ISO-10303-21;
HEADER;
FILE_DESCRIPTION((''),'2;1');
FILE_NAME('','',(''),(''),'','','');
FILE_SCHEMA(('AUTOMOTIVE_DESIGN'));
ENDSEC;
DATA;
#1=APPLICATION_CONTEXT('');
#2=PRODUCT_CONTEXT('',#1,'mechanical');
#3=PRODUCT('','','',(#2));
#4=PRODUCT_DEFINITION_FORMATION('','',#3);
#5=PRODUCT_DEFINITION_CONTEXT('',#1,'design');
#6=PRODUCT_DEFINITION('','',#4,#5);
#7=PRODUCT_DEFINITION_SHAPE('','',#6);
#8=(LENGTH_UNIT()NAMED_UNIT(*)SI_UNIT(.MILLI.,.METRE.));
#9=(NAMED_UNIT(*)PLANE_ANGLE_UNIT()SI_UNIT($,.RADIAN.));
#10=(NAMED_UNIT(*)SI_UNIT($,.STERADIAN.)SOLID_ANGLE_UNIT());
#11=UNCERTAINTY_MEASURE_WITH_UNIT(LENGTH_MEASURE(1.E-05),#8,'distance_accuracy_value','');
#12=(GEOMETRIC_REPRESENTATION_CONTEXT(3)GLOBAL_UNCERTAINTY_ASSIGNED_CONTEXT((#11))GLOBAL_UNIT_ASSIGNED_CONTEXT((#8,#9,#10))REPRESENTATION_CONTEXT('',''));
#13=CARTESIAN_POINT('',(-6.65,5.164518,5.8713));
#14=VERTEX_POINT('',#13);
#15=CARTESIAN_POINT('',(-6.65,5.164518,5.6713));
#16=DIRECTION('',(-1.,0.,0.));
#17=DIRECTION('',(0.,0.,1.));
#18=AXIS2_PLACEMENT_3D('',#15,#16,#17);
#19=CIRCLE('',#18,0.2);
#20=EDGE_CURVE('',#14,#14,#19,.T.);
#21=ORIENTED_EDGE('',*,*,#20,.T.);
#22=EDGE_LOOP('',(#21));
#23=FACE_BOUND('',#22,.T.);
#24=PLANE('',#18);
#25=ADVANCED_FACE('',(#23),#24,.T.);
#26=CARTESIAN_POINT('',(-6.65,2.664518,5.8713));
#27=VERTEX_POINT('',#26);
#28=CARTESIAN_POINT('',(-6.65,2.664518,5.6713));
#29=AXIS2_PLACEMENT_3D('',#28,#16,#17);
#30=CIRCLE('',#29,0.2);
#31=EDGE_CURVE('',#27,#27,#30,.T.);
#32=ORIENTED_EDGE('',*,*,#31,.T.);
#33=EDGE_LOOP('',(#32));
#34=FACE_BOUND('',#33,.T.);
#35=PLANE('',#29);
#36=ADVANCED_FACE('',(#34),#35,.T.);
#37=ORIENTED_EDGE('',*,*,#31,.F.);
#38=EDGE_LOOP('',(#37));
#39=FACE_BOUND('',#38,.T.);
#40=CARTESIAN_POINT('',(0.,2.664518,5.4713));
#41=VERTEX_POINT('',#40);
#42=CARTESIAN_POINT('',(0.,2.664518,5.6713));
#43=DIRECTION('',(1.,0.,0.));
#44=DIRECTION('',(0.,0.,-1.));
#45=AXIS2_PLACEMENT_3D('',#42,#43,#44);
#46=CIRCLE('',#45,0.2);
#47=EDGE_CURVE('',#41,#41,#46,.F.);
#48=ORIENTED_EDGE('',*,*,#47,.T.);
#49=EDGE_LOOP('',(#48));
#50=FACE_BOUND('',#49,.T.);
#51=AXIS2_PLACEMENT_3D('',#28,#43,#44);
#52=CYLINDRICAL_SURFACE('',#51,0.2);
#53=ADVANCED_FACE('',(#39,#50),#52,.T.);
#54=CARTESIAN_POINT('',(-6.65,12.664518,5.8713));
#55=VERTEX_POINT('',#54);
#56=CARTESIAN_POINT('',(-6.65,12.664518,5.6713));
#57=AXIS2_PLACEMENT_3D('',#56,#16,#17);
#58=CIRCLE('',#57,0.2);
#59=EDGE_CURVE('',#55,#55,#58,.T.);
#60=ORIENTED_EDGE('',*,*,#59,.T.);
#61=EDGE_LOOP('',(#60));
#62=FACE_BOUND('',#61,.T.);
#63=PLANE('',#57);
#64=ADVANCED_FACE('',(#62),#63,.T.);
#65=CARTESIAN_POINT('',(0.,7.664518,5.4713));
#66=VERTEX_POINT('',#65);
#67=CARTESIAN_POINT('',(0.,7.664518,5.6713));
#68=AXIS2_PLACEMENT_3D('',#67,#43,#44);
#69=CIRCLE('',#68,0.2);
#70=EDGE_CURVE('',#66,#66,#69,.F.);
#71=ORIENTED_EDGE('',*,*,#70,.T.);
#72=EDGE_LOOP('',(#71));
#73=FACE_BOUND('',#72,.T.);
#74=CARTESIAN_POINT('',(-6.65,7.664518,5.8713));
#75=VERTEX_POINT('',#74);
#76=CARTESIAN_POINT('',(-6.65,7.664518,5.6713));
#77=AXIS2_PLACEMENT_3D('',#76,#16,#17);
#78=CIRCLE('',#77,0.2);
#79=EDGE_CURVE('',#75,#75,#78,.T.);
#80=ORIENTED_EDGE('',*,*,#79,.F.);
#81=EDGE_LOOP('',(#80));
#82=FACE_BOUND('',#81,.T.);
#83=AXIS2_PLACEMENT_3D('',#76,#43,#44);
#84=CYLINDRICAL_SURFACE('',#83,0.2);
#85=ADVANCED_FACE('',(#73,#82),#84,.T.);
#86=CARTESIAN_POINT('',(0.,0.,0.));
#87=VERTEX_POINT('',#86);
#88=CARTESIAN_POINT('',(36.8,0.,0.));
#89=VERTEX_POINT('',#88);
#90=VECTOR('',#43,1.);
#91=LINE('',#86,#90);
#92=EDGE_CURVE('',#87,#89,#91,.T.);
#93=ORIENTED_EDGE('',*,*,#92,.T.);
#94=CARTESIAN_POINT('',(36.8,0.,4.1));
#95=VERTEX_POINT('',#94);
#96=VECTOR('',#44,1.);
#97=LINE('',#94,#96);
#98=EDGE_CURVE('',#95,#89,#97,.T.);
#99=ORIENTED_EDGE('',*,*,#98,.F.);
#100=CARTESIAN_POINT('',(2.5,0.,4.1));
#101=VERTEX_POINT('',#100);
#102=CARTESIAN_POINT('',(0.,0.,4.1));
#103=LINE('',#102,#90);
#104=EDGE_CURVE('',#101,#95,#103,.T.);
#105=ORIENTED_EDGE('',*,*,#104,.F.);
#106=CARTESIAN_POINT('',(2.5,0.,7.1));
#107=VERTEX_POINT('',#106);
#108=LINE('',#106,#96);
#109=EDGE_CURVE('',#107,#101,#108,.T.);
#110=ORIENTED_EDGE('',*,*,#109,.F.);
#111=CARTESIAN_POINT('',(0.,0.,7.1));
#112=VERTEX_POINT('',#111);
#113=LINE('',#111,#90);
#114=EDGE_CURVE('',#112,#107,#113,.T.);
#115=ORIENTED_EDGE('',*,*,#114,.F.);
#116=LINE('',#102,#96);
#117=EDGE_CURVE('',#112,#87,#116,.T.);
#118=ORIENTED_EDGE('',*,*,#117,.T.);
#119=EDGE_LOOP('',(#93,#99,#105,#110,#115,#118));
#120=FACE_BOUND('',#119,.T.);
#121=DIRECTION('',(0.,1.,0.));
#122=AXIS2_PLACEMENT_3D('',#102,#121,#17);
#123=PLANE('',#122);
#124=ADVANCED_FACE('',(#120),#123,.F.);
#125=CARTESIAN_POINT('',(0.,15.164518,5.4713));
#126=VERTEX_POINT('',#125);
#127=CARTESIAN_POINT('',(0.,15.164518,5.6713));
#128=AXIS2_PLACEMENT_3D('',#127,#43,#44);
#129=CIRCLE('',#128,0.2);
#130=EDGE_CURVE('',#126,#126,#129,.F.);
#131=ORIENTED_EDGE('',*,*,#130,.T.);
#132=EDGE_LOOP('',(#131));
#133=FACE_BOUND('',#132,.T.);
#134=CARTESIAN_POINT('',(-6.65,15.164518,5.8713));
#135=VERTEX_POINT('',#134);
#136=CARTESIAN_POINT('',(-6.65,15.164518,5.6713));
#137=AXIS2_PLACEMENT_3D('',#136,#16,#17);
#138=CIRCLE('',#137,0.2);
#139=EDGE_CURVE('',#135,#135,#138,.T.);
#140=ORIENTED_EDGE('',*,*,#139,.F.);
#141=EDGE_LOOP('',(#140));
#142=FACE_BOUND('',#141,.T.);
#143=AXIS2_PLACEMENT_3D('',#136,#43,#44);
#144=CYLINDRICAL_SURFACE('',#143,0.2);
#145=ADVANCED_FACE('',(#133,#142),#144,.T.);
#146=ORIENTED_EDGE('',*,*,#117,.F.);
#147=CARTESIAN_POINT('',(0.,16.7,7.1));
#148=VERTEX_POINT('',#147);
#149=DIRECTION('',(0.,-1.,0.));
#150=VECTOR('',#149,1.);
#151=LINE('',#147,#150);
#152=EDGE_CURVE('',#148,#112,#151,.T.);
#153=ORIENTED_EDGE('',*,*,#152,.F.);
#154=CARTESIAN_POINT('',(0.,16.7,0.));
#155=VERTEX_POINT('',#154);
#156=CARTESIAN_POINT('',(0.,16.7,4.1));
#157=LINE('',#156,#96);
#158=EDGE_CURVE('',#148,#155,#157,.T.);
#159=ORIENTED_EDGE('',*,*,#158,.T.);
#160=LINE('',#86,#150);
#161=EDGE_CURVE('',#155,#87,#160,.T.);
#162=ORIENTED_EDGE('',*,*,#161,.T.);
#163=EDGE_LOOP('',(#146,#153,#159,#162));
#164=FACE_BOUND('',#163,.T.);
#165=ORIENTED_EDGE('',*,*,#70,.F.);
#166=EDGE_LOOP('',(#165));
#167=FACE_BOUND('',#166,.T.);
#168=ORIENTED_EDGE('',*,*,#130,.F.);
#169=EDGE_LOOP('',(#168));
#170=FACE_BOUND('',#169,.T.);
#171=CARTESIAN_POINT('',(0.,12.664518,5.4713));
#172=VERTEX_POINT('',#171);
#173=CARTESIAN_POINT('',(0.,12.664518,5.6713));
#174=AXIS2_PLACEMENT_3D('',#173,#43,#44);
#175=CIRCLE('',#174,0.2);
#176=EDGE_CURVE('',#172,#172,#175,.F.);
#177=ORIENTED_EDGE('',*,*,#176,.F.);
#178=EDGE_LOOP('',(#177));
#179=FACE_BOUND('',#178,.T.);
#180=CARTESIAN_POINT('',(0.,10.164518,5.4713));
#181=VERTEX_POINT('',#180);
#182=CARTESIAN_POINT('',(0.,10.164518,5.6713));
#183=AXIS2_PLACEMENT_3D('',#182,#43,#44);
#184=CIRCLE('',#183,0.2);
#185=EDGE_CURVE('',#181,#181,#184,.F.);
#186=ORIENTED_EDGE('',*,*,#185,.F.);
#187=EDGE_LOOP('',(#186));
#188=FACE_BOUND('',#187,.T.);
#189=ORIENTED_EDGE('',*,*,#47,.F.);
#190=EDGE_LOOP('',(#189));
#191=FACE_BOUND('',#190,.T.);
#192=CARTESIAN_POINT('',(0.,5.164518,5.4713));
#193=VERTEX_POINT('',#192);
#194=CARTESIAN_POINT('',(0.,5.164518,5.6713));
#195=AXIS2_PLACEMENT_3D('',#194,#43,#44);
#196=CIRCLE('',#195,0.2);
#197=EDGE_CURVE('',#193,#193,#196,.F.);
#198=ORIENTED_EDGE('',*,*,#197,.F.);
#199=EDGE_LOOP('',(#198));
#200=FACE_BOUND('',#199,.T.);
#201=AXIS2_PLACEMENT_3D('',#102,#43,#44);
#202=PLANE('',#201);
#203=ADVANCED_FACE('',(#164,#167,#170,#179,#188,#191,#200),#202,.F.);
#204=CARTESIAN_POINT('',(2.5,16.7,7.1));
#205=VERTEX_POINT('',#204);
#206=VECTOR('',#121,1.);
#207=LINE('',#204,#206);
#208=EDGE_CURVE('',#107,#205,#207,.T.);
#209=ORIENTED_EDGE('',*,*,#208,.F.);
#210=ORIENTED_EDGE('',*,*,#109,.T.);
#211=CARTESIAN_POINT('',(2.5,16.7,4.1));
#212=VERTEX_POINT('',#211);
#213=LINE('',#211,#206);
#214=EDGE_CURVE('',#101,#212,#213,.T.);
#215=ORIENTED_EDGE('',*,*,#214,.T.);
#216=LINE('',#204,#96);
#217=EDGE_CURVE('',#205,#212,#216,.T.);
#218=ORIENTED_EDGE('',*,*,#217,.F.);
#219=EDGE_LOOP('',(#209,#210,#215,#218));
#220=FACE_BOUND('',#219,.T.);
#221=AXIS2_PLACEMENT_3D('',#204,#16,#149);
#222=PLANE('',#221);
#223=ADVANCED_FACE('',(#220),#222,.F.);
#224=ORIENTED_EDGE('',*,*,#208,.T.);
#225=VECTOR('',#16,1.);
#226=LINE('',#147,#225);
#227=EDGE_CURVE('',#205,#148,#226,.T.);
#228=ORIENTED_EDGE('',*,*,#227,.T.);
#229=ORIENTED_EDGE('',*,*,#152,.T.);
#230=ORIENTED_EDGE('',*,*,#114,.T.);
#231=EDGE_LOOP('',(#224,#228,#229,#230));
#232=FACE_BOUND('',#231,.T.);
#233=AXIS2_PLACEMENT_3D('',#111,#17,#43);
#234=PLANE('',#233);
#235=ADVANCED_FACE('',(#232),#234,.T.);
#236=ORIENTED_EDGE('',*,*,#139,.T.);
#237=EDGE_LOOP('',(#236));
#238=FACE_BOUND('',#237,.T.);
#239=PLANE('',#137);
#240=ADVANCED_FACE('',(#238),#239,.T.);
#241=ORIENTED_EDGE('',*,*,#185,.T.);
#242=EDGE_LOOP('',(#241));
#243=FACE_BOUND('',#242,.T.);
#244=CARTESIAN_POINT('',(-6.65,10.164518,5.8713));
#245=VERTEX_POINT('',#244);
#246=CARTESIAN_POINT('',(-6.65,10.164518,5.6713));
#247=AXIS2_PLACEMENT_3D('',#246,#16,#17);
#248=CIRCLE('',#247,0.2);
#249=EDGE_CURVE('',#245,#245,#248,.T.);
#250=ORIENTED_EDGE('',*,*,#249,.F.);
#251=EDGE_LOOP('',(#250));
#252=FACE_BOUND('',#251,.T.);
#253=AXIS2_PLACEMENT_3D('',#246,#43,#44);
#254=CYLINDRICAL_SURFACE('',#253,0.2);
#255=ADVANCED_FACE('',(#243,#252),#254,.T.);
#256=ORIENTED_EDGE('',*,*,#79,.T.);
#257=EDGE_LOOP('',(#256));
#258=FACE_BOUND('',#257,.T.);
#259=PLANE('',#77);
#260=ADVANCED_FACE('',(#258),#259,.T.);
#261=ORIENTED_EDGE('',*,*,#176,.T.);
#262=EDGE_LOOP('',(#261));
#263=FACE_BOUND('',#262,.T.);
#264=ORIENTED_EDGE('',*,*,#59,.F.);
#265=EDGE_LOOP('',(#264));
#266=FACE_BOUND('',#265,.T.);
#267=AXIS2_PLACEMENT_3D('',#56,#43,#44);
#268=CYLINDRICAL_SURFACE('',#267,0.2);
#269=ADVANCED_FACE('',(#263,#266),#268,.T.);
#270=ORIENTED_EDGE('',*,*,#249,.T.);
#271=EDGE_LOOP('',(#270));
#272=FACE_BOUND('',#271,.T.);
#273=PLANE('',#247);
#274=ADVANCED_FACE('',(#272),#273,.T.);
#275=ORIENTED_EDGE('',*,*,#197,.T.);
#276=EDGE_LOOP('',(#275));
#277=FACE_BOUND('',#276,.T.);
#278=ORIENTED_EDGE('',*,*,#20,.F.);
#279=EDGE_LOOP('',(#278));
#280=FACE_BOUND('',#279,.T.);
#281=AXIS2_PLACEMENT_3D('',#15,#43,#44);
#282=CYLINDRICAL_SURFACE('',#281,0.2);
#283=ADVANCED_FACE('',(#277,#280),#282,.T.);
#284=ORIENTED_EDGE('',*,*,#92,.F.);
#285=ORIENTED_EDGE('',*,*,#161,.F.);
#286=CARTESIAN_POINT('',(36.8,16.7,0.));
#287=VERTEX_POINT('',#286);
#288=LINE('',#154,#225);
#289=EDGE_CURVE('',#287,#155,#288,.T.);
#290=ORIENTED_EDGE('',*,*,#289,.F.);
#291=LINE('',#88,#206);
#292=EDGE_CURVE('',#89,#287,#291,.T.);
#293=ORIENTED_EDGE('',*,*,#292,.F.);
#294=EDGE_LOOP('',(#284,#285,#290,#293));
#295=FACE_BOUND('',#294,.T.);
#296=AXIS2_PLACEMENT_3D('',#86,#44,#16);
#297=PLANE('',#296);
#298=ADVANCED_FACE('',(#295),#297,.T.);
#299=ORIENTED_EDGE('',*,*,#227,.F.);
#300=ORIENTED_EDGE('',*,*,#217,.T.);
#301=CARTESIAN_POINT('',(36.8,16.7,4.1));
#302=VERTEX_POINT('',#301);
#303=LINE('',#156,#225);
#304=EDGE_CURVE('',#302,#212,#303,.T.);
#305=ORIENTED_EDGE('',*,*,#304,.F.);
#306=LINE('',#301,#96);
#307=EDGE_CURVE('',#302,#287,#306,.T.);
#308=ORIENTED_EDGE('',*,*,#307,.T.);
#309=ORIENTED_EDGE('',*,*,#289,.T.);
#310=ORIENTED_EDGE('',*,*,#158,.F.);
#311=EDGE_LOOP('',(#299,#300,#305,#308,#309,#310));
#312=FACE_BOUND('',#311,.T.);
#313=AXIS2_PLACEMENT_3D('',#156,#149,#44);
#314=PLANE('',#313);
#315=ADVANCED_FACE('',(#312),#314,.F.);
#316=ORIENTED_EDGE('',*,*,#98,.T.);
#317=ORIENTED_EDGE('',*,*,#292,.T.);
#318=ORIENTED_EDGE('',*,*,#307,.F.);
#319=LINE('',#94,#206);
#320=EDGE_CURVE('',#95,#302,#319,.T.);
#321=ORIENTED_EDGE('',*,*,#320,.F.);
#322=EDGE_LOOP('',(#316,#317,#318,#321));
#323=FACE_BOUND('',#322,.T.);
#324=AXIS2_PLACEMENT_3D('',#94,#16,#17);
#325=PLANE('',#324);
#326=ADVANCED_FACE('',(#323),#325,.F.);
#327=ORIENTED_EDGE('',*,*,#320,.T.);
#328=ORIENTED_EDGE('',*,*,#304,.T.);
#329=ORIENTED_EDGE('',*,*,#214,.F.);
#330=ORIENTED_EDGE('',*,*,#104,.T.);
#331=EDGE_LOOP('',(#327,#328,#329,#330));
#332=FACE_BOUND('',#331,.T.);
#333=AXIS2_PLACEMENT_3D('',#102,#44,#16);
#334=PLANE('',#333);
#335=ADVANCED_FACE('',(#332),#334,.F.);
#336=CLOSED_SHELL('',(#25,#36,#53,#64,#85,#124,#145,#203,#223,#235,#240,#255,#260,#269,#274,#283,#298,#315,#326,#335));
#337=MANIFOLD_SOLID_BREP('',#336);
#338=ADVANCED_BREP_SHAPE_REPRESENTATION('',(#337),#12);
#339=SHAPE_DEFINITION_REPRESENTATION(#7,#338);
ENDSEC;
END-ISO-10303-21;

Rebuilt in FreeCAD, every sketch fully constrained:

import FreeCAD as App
import Part
import Sketcher
from FreeCAD import Vector

doc = App.newDocument("Part")
body = doc.addObject("PartDesign::Body", "Body")

# Sketch on XY plane
sketch1 = body.newObject("Sketcher::SketchObject", "Sketch")
sketch1.AttachmentSupport = (doc.getObject("XY_Plane"), [""])
sketch1.MapMode = "FlatFace"
sketch1.addGeometry([
    Part.LineSegment(Vector(0, 16.7, 0), Vector(0, 0, 0)),
    Part.LineSegment(Vector(0, 0, 0), Vector(36.8, 0, 0)),
    Part.LineSegment(Vector(36.8, 0, 0), Vector(36.8, 16.7, 0)),
    Part.LineSegment(Vector(36.8, 16.7, 0), Vector(0, 16.7, 0)),
], False)
sketch1.addConstraint([
    Sketcher.Constraint("Coincident", 0, 2, 1, 1),
    Sketcher.Constraint("Coincident", 1, 2, 2, 1),
    Sketcher.Constraint("Coincident", 2, 2, 3, 1),
    Sketcher.Constraint("Coincident", 3, 2, 0, 1),
    Sketcher.Constraint("Vertical", 0),
    Sketcher.Constraint("Horizontal", 1),
    Sketcher.Constraint("Vertical", 2),
    Sketcher.Constraint("Horizontal", 3),
    Sketcher.Constraint("Coincident", 0, 2, -1, 1),
    Sketcher.Constraint("DistanceX", 1, 1, 1, 2, 36.8),
    Sketcher.Constraint("DistanceY", 0, 2, 0, 1, 16.7),
])
pad1 = body.newObject("PartDesign::Pad", "Pad")
pad1.Profile = sketch1
pad1.Length = 4.1

# Sketch on XY plane
sketch2 = body.newObject("Sketcher::SketchObject", "Sketch001")
sketch2.AttachmentSupport = (doc.getObject("XY_Plane"), [""])
sketch2.MapMode = "FlatFace"
sketch2.AttachmentOffset = App.Placement(Vector(0, 0, 4.1), App.Rotation())
sketch2.addGeometry([
    Part.LineSegment(Vector(0, 16.7, 0), Vector(0, 0, 0)),
    Part.LineSegment(Vector(0, 0, 0), Vector(2.5, 0, 0)),
    Part.LineSegment(Vector(2.5, 0, 0), Vector(2.5, 16.7, 0)),
    Part.LineSegment(Vector(2.5, 16.7, 0), Vector(0, 16.7, 0)),
], False)
sketch2.addConstraint([
    Sketcher.Constraint("Coincident", 0, 2, 1, 1),
    Sketcher.Constraint("Coincident", 1, 2, 2, 1),
    Sketcher.Constraint("Coincident", 2, 2, 3, 1),
    Sketcher.Constraint("Coincident", 3, 2, 0, 1),
    Sketcher.Constraint("Vertical", 0),
    Sketcher.Constraint("Horizontal", 1),
    Sketcher.Constraint("Vertical", 2),
    Sketcher.Constraint("Horizontal", 3),
    Sketcher.Constraint("Coincident", 0, 2, -1, 1),
    Sketcher.Constraint("DistanceX", 1, 1, 1, 2, 2.5),
    Sketcher.Constraint("DistanceY", 0, 2, 0, 1, 16.7),
])
pad2 = body.newObject("PartDesign::Pad", "Pad001")
pad2.Profile = sketch2
pad2.Length = 3

# Sketch on YZ plane
sketch3 = body.newObject("Sketcher::SketchObject", "Sketch002")
sketch3.AttachmentSupport = (doc.getObject("YZ_Plane"), [""])
sketch3.MapMode = "FlatFace"
sketch3.addGeometry([
    Part.Circle(Vector(15.164518, 5.6713, 0), Vector(0, 0, 1), 0.2),  # 0
    Part.Circle(Vector(12.664518, 5.6713, 0), Vector(0, 0, 1), 0.2),  # 1
    Part.Circle(Vector(10.164518, 5.6713, 0), Vector(0, 0, 1), 0.2),  # 2
    Part.Circle(Vector(7.664518, 5.6713, 0), Vector(0, 0, 1), 0.2),  # 3
    Part.Circle(Vector(5.164518, 5.6713, 0), Vector(0, 0, 1), 0.2),  # 4
    Part.Circle(Vector(2.664518, 5.6713, 0), Vector(0, 0, 1), 0.2),  # 5
], False)
sketch3.addConstraint([
    Sketcher.Constraint("Equal", 0, 1),
    Sketcher.Constraint("Equal", 1, 2),
    Sketcher.Constraint("Equal", 2, 3),
    Sketcher.Constraint("Equal", 3, 4),
    Sketcher.Constraint("Equal", 4, 5),
    Sketcher.Constraint("Horizontal", 0, 3, 1, 3),
    Sketcher.Constraint("Horizontal", 1, 3, 2, 3),
    Sketcher.Constraint("Horizontal", 2, 3, 3, 3),
    Sketcher.Constraint("Horizontal", 3, 3, 4, 3),
    Sketcher.Constraint("Horizontal", 4, 3, 5, 3),
    Sketcher.Constraint("Diameter", 0, 0.4),
    Sketcher.Constraint("DistanceX", 2, 3, 0, 3, 5.0),
    Sketcher.Constraint("DistanceX", 3, 3, 1, 3, 5.0),
    Sketcher.Constraint("DistanceX", 4, 3, 2, 3, 5.0),
    Sketcher.Constraint("DistanceX", 5, 3, 3, 3, 5.0),
    Sketcher.Constraint("DistanceX", 1, 3, 0, 3, 2.5),
    Sketcher.Constraint("DistanceY", -1, 1, 0, 3, 5.6713),
    Sketcher.Constraint("DistanceX", -1, 1, 0, 3, 15.164518),
])
pad3 = body.newObject("PartDesign::Pad", "Pad002")
pad3.Profile = sketch3
pad3.Length = 6.65
pad3.Reversed = True

doc.recompute()
